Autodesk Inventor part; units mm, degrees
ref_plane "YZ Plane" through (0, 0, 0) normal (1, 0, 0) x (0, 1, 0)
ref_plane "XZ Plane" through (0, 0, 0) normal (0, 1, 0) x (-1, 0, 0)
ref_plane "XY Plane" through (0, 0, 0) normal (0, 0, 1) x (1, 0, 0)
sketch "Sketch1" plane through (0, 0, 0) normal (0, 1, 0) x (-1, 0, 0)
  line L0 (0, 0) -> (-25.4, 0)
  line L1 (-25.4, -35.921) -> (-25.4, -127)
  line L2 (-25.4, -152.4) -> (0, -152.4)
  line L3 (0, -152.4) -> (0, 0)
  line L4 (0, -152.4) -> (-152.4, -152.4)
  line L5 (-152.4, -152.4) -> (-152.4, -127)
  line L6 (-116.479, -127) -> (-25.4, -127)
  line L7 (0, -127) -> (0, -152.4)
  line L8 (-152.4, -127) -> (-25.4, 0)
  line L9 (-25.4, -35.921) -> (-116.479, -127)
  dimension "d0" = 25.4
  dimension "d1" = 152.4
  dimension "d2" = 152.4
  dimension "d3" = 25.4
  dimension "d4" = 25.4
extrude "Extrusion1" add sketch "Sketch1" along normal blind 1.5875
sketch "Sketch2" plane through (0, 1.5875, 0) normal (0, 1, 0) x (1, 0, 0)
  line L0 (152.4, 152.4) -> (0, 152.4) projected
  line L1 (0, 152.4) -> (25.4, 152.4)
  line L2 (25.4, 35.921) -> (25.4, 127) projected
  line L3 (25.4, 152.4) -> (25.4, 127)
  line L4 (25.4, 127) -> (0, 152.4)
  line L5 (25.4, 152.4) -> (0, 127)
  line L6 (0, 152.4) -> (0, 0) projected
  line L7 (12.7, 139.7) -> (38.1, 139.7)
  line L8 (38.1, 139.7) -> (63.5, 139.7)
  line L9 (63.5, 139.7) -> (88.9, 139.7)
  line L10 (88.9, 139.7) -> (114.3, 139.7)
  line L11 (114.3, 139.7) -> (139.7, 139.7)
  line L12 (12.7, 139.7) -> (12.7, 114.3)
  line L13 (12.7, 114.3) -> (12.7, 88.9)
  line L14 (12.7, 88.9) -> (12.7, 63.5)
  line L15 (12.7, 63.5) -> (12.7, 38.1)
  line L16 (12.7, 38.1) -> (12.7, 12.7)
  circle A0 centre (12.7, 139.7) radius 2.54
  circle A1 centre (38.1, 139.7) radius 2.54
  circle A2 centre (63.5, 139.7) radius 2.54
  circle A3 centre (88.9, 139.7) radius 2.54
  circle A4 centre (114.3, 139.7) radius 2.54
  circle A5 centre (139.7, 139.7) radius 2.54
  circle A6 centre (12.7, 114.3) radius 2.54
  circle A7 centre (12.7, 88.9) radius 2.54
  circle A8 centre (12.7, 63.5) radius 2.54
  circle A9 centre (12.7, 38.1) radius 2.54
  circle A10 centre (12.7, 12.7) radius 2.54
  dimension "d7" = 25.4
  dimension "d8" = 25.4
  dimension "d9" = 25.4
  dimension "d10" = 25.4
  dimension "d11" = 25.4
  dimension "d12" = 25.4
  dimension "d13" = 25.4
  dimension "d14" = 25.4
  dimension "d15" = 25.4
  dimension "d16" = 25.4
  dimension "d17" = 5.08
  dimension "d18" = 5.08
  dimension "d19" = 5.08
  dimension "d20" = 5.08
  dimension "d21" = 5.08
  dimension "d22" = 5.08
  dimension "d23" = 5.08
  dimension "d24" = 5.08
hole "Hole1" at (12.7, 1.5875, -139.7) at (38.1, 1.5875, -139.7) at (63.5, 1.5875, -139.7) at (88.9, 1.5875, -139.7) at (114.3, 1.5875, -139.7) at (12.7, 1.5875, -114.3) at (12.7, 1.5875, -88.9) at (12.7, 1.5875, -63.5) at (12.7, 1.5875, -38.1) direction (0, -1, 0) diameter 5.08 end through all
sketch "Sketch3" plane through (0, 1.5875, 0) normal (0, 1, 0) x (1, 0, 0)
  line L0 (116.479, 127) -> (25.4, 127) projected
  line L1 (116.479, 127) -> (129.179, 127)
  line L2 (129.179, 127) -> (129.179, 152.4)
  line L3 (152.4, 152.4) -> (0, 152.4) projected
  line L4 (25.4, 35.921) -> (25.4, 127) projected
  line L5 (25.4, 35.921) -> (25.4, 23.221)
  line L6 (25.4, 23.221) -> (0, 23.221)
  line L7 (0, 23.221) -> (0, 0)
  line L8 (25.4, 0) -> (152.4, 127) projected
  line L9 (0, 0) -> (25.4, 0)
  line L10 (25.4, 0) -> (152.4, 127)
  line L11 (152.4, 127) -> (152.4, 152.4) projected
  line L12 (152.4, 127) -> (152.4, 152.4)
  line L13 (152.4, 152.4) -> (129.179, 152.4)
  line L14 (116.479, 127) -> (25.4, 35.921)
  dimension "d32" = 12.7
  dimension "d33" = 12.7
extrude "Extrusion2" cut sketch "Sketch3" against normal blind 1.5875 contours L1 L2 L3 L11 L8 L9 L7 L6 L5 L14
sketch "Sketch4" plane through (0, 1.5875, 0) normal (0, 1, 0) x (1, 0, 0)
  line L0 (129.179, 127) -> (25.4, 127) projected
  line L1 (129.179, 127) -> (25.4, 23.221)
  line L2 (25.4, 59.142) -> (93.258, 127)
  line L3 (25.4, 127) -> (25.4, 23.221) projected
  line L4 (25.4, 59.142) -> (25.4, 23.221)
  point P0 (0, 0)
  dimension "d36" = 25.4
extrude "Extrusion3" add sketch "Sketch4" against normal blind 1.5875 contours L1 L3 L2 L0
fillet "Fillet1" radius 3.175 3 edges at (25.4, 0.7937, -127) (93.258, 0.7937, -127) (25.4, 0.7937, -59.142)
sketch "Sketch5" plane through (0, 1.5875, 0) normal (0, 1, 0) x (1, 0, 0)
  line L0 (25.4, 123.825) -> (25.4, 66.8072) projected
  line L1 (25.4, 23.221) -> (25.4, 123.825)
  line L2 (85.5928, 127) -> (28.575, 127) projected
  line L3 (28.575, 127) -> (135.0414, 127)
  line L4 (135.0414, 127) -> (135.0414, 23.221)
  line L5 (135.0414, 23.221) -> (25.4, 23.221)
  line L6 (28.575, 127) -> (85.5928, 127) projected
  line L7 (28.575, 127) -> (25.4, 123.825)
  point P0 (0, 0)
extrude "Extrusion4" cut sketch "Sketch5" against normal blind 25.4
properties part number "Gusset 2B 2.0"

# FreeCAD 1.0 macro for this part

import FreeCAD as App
import Part
import Sketcher
from FreeCAD import Vector
Q = App.Units.Quantity


def edges_at(feature, points):
    """Names of the edges that pass closest to the given points."""
    edges = feature.Shape.Edges
    near = lambda p: min(range(len(edges)), key=lambda i: edges[i].distToShape(Part.Vertex(*p))[0])
    return sorted({f"Edge{near(p) + 1}" for p in points})


def add_polygon(sketch, points):
    """Adds a closed chain of lines whose ends are joined by coincident constraints."""
    first, n = sketch.GeometryCount, len(points)
    for a, b in zip(points, points[1:] + points[:1]):
        sketch.addGeometry(Part.LineSegment(App.Vector(*a, 0), App.Vector(*b, 0)), False)
    for i in range(n):
        sketch.addConstraint(Sketcher.Constraint("Coincident", first + i, 2, first + (i + 1) % n, 1))

doc = App.newDocument("Part")
body = doc.addObject("PartDesign::Body", "Body")

# Sketch on XZ plane
sketch1 = body.newObject("Sketcher::SketchObject", "Sketch")
sketch1.AttachmentSupport = (doc.getObject("XZ_Plane"), [""])
sketch1.MapMode = "FlatFace"
add_polygon(sketch1, [(0, -152), (0, 0), (25, 0), (152, -127), (152, -152)])  # lines 0-4
add_polygon(sketch1, [(116, -127), (25, -36), (25, -127)])  # lines 5-7
sketch1.addConstraint([
    Sketcher.Constraint("Vertical", 0),
    Sketcher.Constraint("Horizontal", 1),
    Sketcher.Constraint("Vertical", 3),
    Sketcher.Constraint("Horizontal", 4),
    Sketcher.Constraint("Vertical", 6),
    Sketcher.Constraint("Horizontal", 7),
    Sketcher.Constraint("Coincident", 0, 2, -1, 1),
    Sketcher.Constraint("Parallel", 2, 5),
    Sketcher.Constraint("Horizontal", 2, 2, 6, 2),
    Sketcher.Constraint("Vertical", 1, 2, 5, 2),
    Sketcher.Constraint("Equal", 4, 0),
    Sketcher.Constraint("Equal", 1, 3),
    Sketcher.Constraint("DistanceX", 1, 1, 1, 2, Q("1 in")),
    Sketcher.Constraint("DistanceX", 4, 2, 4, 1, Q("6 in")),
    Sketcher.Constraint("DistanceX", 7, 1, 7, 2, Q("91.079 mm")),
])
pad1 = body.newObject("PartDesign::Pad", "Pad")
pad1.Profile = sketch1
pad1.Length = Q("0.0625 in")
pad1.Reversed = True

# Sketch on XZ plane
sketch2 = body.newObject("Sketcher::SketchObject", "Sketch001")
sketch2.AttachmentSupport = (doc.getObject("XZ_Plane"), [""])
sketch2.MapMode = "FlatFace"
sketch2.AttachmentOffset = App.Placement(Vector(0, 0, -0.0625 * 25.4), App.Rotation())
sketch2.addGeometry([
    Part.Circle(Vector(12.7, -139.7, 0), Vector(0, 0, 1), 2.5),  # 0
    Part.Circle(Vector(38.1, -139.7, 0), Vector(0, 0, 1), 2.5),  # 1
    Part.Circle(Vector(63.5, -139.7, 0), Vector(0, 0, 1), 2.5),  # 2
    Part.Circle(Vector(88.9, -139.7, 0), Vector(0, 0, 1), 2.5),  # 3
    Part.Circle(Vector(114.3, -139.7, 0), Vector(0, 0, 1), 2.5),  # 4
    Part.Circle(Vector(12.7, -114.3, 0), Vector(0, 0, 1), 2.5),  # 5
    Part.Circle(Vector(12.7, -88.9, 0), Vector(0, 0, 1), 2.5),  # 6
    Part.Circle(Vector(12.7, -63.5, 0), Vector(0, 0, 1), 2.5),  # 7
    Part.Circle(Vector(12.7, -38.1, 0), Vector(0, 0, 1), 2.5),  # 8
], False)
sketch2.addConstraint([
    Sketcher.Constraint("Equal", 0, 1),
    Sketcher.Constraint("Equal", 1, 2),
    Sketcher.Constraint("Equal", 2, 3),
    Sketcher.Constraint("Equal", 3, 4),
    Sketcher.Constraint("Equal", 4, 5),
    Sketcher.Constraint("Equal", 5, 6),
    Sketcher.Constraint("Equal", 6, 7),
    Sketcher.Constraint("Equal", 7, 8),
    Sketcher.Constraint("Horizontal", 0, 3, 1, 3),
    Sketcher.Constraint("Horizontal", 1, 3, 2, 3),
    Sketcher.Constraint("Horizontal", 2, 3, 3, 3),
    Sketcher.Constraint("Horizontal", 3, 3, 4, 3),
    Sketcher.Constraint("Vertical", 0, 3, 5, 3),
    Sketcher.Constraint("Vertical", 5, 3, 6, 3),
    Sketcher.Constraint("Vertical", 6, 3, 7, 3),
    Sketcher.Constraint("Vertical", 7, 3, 8, 3),
    Sketcher.Constraint("Diameter", 0, Q("0.2 in")),
    Sketcher.Constraint("DistanceX", 0, 3, 1, 3, Q("1 in")),
    Sketcher.Constraint("DistanceX", 1, 3, 2, 3, Q("1 in")),
    Sketcher.Constraint("DistanceX", 2, 3, 3, 3, Q("1 in")),
    Sketcher.Constraint("DistanceX", 3, 3, 4, 3, Q("1 in")),
    Sketcher.Constraint("DistanceY", 0, 3, 5, 3, Q("1 in")),
    Sketcher.Constraint("DistanceY", 5, 3, 6, 3, Q("1 in")),
    Sketcher.Constraint("DistanceY", 6, 3, 7, 3, Q("1 in")),
    Sketcher.Constraint("DistanceY", 7, 3, 8, 3, Q("1 in")),
    Sketcher.Constraint("DistanceX", -1, 1, 0, 3, Q("0.5 in")),
    Sketcher.Constraint("DistanceY", 0, 3, -1, 1, Q("5.5 in")),
])
doc.recompute()
hole = body.newObject("PartDesign::Hole", "Hole")
hole.Profile = sketch2
hole.ThreadType = "None"
hole.Diameter = Q("0.2 in")
hole.DepthType = "ThroughAll"
hole.Reversed = True

# Sketch on XZ plane
sketch3 = body.newObject("Sketcher::SketchObject", "Sketch002")
sketch3.AttachmentSupport = (doc.getObject("XZ_Plane"), [""])
sketch3.MapMode = "FlatFace"
sketch3.AttachmentOffset = App.Placement(Vector(0, 0, -0.0625 * 25.4), App.Rotation())
add_polygon(sketch3, [(129, -127), (116, -127), (25, -36), (25, -23), (0, -23), (0, 0), (25, 0), (152, -127), (152, -152), (129, -152)])  # lines 0-9
sketch3.addConstraint([
    Sketcher.Constraint("Horizontal", 0),
    Sketcher.Constraint("Vertical", 2),
    Sketcher.Constraint("Horizontal", 3),
    Sketcher.Constraint("Vertical", 4),
    Sketcher.Constraint("Horizontal", 5),
    Sketcher.Constraint("Vertical", 7),
    Sketcher.Constraint("Horizontal", 8),
    Sketcher.Constraint("Vertical", 9),
    Sketcher.Constraint("Coincident", 4, 2, -1, 1),
    Sketcher.Constraint("Parallel", 1, 6),
    Sketcher.Constraint("Horizontal", 0, 2, 6, 2),
    Sketcher.Constraint("Vertical", 2, 2, 5, 2),
    Sketcher.Constraint("Equal", 0, 2),
    Sketcher.Constraint("Equal", 8, 4),
    Sketcher.Constraint("Equal", 5, 7),
    Sketcher.Constraint("DistanceX", 0, 2, 0, 1, Q("0.5 in")),
    Sketcher.Constraint("DistanceX", 3, 2, 3, 1, Q("1 in")),
    Sketcher.Constraint("DistanceY", 0, 2, -1, 1, Q("5 in")),
    Sketcher.Constraint("DistanceX", 8, 2, 8, 1, Q("23.221 mm")),
])
pocket1 = body.newObject("PartDesign::Pocket", "Pocket")
pocket1.Profile = sketch3
pocket1.Length = Q("0.0625 in")
pocket1.Reversed = True

# Sketch on XZ plane
sketch4 = body.newObject("Sketcher::SketchObject", "Sketch003")
sketch4.AttachmentSupport = (doc.getObject("XZ_Plane"), [""])
sketch4.MapMode = "FlatFace"
sketch4.AttachmentOffset = App.Placement(Vector(0, 0, -0.0625 * 25.4), App.Rotation())
add_polygon(sketch4, [(25, -23), (129, -127), (93, -127), (25, -59)])  # lines 0-3
sketch4.addConstraint([
    Sketcher.Constraint("Horizontal", 1),
    Sketcher.Constraint("Vertical", 3),
    Sketcher.Constraint("Parallel", 0, 2),
    Sketcher.Constraint("Equal", 1, 3),
    Sketcher.Constraint("DistanceX", -1, 1, 2, 2, Q("1 in")),
    Sketcher.Constraint("DistanceY", 0, 2, -1, 1, Q("5 in")),
    Sketcher.Constraint("DistanceX", 1, 2, 1, 1, Q("35.921 mm")),
    Sketcher.Constraint("Distance", 0, Q("146.7657 mm")),
])
pad2 = body.newObject("PartDesign::Pad", "Pad001")
pad2.Profile = sketch4
pad2.Length = Q("0.0625 in")
doc.recompute()

fillet = body.newObject("PartDesign::Fillet", "Fillet")
fillet.Base = (pad2, edges_at(pad2, [(25.4, 0.794, -127), (93.258, 0.794, -127), (25.4, 0.794, -59.142)]))
fillet.Radius = Q("0.125 in")

# Sketch on XZ plane
sketch5 = body.newObject("Sketcher::SketchObject", "Sketch004")
sketch5.AttachmentSupport = (doc.getObject("XZ_Plane"), [""])
sketch5.MapMode = "FlatFace"
sketch5.AttachmentOffset = App.Placement(Vector(0, 0, -0.0625 * 25.4), App.Rotation())
add_polygon(sketch5, [(28.6, -127), (25.4, -123.8), (25.4, -23.2), (135, -23.2), (135, -127)])  # lines 0-4
sketch5.addConstraint([
    Sketcher.Constraint("Vertical", 1),
    Sketcher.Constraint("Horizontal", 2),
    Sketcher.Constraint("Vertical", 3),
    Sketcher.Constraint("Horizontal", 4),
    Sketcher.Constraint("DistanceX", -1, 1, 0, 2, Q("1 in")),
    Sketcher.Constraint("DistanceY", 3, 2, -1, 1, Q("5 in")),
    Sketcher.Constraint("Angle", 0, Q("135 deg")),
    Sketcher.Constraint("DistanceX", 2, 1, 2, 2, Q("4.3166 in")),
    Sketcher.Constraint("DistanceX", 4, 2, 4, 1, Q("4.1916 in")),
    Sketcher.Constraint("DistanceY", 1, 1, 1, 2, Q("100.604 mm")),
])
pocket2 = body.newObject("PartDesign::Pocket", "Pocket001")
pocket2.Profile = sketch5
pocket2.Length = Q("1 in")
pocket2.Reversed = True

doc.recompute()
